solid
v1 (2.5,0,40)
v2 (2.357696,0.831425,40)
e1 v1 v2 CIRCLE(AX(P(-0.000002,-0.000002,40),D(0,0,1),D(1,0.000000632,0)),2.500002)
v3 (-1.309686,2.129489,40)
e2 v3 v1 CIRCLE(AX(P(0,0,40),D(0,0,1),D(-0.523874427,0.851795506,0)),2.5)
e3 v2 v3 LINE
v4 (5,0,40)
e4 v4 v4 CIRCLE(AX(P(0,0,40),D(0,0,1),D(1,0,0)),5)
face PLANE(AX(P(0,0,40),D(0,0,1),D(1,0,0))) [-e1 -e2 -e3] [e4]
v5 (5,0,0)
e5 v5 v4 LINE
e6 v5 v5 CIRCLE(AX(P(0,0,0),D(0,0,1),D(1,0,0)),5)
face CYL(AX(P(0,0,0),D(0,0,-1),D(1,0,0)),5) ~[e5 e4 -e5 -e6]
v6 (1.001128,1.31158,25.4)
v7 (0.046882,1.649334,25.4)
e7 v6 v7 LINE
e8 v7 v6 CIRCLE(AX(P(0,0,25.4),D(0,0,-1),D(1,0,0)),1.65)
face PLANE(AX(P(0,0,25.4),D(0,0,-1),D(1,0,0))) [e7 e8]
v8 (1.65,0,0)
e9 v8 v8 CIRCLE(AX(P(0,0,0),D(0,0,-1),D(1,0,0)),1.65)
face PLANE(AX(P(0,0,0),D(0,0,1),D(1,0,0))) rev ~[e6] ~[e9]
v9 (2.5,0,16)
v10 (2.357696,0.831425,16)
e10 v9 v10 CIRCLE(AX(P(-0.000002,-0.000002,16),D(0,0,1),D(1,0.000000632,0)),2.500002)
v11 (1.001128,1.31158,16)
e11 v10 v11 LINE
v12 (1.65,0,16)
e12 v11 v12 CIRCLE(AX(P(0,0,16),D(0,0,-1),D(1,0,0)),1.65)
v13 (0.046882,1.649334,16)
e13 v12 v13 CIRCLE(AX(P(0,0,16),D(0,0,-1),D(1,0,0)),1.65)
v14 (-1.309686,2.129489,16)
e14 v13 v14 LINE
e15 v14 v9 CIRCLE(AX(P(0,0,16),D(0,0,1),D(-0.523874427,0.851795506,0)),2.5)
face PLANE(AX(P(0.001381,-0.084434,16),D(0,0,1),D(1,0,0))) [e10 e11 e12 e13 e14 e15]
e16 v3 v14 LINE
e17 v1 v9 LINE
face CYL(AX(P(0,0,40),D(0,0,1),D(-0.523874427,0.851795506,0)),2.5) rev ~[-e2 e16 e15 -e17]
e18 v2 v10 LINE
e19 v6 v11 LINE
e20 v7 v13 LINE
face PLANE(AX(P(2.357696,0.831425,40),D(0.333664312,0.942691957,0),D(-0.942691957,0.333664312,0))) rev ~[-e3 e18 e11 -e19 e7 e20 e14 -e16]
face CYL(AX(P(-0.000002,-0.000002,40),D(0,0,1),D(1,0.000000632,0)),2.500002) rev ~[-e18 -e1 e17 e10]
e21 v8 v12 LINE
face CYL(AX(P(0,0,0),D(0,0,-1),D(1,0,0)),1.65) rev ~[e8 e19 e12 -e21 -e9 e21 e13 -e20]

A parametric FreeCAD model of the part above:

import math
import FreeCAD as App
import Part
import Sketcher

V = App.Vector

doc = App.newDocument("Part")
body = doc.addObject("PartDesign::Body", "Body")

# Sketch on XY plane
sketch1 = body.newObject("Sketcher::SketchObject", "Sketch")
sketch1.AttachmentSupport = (doc.getObject("XY_Plane"), [""])
sketch1.MapMode = "FlatFace"
sketch1.addGeometry(Part.Circle(V(0, 0, 0), V(0, 0, 1), 5), False)
sketch1.addConstraint([
    Sketcher.Constraint("Coincident", 0, 3, -1, 1),
    Sketcher.Constraint("Diameter", 0, 10.0),
])
pad1 = body.newObject("PartDesign::Pad", "Pad")
pad1.Profile = sketch1
pad1.Length = 40

# Sketch on XY plane
sketch2 = body.newObject("Sketcher::SketchObject", "Sketch001")
sketch2.AttachmentSupport = (doc.getObject("XY_Plane"), [""])
sketch2.MapMode = "FlatFace"
sketch2.AttachmentOffset = App.Placement(V(0, 0, 40), App.Rotation())
sketch2.addGeometry([
    Part.ArcOfCircle(Part.Circle(V(0, 0, 0), V(0, 0, 1), 2.5), math.radians(122), math.radians(360)),
    Part.ArcOfCircle(Part.Circle(V(0, 0, 0), V(0, 0, 1), 2.5), math.radians(0), math.radians(19.42)),
    Part.LineSegment(V(2.4, 0.8, 0), V(-1.3, 2.1, 0)),
], False)
sketch2.addConstraint([
    Sketcher.Constraint("Tangent", 0, 2, 1, 1),
    Sketcher.Constraint("Coincident", 1, 2, 2, 1),
    Sketcher.Constraint("Coincident", 2, 2, 0, 1),
    Sketcher.Constraint("Coincident", 0, 3, -1, 1),
    Sketcher.Constraint("PointOnObject", 0, 2, -1),
    Sketcher.Constraint("Radius", 0, 2.5),
    Sketcher.Constraint("Radius", 1, 2.500002),
    Sketcher.Constraint("DistanceX", 1, 3, 1, 2, 2.357698),
    Sketcher.Constraint("Distance", 2, 3.890329),
])
pocket1 = body.newObject("PartDesign::Pocket", "Pocket")
pocket1.Profile = sketch2
pocket1.Length = 24

# Sketch on XY plane
sketch3 = body.newObject("Sketcher::SketchObject", "Sketch002")
sketch3.AttachmentSupport = (doc.getObject("XY_Plane"), [""])
sketch3.MapMode = "FlatFace"
sketch3.addGeometry(Part.Circle(V(0, 0, 0), V(0, 0, 1), 1.6), False)
sketch3.addConstraint([
    Sketcher.Constraint("Coincident", 0, 3, -1, 1),
    Sketcher.Constraint("Diameter", 0, 3.3),
])
pocket2 = body.newObject("PartDesign::Pocket", "Pocket001")
pocket2.Profile = sketch3
pocket2.Length = 25.4
pocket2.Reversed = True

doc.recompute()
